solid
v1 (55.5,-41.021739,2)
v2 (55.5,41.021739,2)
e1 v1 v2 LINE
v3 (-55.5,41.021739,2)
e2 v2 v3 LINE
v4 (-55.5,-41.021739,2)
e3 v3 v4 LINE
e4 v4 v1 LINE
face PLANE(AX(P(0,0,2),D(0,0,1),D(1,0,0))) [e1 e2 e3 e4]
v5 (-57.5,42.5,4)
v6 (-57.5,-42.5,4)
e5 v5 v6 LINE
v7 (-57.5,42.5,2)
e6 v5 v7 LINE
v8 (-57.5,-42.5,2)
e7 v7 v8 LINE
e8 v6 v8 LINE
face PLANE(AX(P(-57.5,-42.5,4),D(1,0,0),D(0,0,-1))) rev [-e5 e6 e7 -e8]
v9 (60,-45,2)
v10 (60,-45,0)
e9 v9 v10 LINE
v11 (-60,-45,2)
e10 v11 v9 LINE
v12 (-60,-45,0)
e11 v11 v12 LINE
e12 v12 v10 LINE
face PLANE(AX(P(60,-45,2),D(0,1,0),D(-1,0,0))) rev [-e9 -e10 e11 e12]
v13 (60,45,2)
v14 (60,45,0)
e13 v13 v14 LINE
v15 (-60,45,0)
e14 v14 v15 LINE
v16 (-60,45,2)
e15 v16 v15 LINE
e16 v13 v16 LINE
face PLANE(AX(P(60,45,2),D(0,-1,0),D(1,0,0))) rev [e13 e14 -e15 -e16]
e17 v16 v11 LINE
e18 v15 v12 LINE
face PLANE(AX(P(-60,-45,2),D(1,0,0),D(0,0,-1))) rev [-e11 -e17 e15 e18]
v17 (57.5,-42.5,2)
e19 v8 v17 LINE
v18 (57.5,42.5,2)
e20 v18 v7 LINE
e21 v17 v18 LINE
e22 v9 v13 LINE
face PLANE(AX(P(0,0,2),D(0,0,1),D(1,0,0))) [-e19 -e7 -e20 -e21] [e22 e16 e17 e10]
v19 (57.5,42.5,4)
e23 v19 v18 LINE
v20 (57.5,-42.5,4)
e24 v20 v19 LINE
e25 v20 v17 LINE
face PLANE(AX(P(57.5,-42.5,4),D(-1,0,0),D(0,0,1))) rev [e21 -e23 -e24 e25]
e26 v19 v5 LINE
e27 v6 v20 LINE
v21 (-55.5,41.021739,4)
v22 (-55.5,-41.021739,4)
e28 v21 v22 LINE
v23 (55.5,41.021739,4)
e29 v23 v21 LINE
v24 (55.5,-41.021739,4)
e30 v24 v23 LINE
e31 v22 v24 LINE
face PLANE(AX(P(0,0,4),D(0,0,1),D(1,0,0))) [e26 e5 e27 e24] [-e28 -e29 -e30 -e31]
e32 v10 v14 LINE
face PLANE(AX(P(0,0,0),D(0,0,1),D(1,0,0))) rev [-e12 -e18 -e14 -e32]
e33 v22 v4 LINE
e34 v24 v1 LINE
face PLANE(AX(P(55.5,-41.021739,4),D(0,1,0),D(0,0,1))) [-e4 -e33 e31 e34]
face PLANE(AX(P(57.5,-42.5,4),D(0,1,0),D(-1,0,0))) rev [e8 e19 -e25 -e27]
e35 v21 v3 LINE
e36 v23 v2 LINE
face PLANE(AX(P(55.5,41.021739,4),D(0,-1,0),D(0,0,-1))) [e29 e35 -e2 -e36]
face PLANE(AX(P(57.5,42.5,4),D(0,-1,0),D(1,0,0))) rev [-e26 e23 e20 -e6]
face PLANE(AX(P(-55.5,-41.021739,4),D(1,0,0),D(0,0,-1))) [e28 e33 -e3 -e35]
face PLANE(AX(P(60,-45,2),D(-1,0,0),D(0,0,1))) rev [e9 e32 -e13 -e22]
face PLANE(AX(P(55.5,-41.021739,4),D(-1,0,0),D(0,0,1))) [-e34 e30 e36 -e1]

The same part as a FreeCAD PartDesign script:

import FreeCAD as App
import Part
import Sketcher


def add_polygon(sketch, points):
    """Adds a closed chain of lines whose ends are joined by coincident constraints."""
    first, n = sketch.GeometryCount, len(points)
    for a, b in zip(points, points[1:] + points[:1]):
        sketch.addGeometry(Part.LineSegment(App.Vector(*a, 0), App.Vector(*b, 0)), False)
    for i in range(n):
        sketch.addConstraint(Sketcher.Constraint("Coincident", first + i, 2, first + (i + 1) % n, 1))

doc = App.newDocument("Part")
body = doc.addObject("PartDesign::Body", "Body")

# Sketch on XY plane
sketch1 = body.newObject("Sketcher::SketchObject", "Sketch")
sketch1.AttachmentSupport = (doc.getObject("XY_Plane"), [""])
sketch1.MapMode = "FlatFace"
add_polygon(sketch1, [(-60, 45), (-60, -45), (60, -45), (60, 45)])  # lines 0-3
sketch1.addConstraint(Sketcher.Constraint("Vertical", 0))
sketch1.addConstraint(Sketcher.Constraint("Horizontal", 1))
sketch1.addConstraint(Sketcher.Constraint("Vertical", 2))
sketch1.addConstraint(Sketcher.Constraint("Horizontal", 3))
sketch1.addConstraint(Sketcher.Constraint("Symmetric", 0, 2, 2, 2, -1, 1))
sketch1.addConstraint(Sketcher.Constraint("DistanceX", 1, 1, 1, 2, 120.0))
sketch1.addConstraint(Sketcher.Constraint("DistanceY", 0, 2, 0, 1, 90.0))
pad1 = body.newObject("PartDesign::Pad", "Pad")
pad1.Profile = sketch1
pad1.Length = 2

# Sketch on XY plane
sketch2 = body.newObject("Sketcher::SketchObject", "Sketch001")
sketch2.AttachmentSupport = (doc.getObject("XY_Plane"), [""])
sketch2.MapMode = "FlatFace"
sketch2.AttachmentOffset = App.Placement(App.Vector(0, 0, 2), App.Rotation())
add_polygon(sketch2, [(-58, 42), (-58, -42), (58, -42), (58, 42)])  # lines 0-3
add_polygon(sketch2, [(56, -41), (-56, -41), (-56, 41), (56, 41)])  # lines 4-7
sketch2.addConstraint(Sketcher.Constraint("Vertical", 0))
sketch2.addConstraint(Sketcher.Constraint("Horizontal", 1))
sketch2.addConstraint(Sketcher.Constraint("Vertical", 2))
sketch2.addConstraint(Sketcher.Constraint("Horizontal", 3))
sketch2.addConstraint(Sketcher.Constraint("Horizontal", 4))
sketch2.addConstraint(Sketcher.Constraint("Vertical", 5))
sketch2.addConstraint(Sketcher.Constraint("Horizontal", 6))
sketch2.addConstraint(Sketcher.Constraint("Vertical", 7))
sketch2.addConstraint(Sketcher.Constraint("Symmetric", 0, 2, 2, 2, -1, 1))
sketch2.addConstraint(Sketcher.Constraint("Symmetric", 4, 2, 6, 2, -1, 1))
sketch2.addConstraint(Sketcher.Constraint("DistanceX", 1, 1, 1, 2, 115.0))
sketch2.addConstraint(Sketcher.Constraint("DistanceX", 4, 2, 4, 1, 111.0))
sketch2.addConstraint(Sketcher.Constraint("DistanceY", 0, 2, 0, 1, 85.0))
sketch2.addConstraint(Sketcher.Constraint("DistanceY", 5, 1, 5, 2, 82.043478))
pad2 = body.newObject("PartDesign::Pad", "Pad001")
pad2.Profile = sketch2
pad2.Length = 2

doc.recompute()
